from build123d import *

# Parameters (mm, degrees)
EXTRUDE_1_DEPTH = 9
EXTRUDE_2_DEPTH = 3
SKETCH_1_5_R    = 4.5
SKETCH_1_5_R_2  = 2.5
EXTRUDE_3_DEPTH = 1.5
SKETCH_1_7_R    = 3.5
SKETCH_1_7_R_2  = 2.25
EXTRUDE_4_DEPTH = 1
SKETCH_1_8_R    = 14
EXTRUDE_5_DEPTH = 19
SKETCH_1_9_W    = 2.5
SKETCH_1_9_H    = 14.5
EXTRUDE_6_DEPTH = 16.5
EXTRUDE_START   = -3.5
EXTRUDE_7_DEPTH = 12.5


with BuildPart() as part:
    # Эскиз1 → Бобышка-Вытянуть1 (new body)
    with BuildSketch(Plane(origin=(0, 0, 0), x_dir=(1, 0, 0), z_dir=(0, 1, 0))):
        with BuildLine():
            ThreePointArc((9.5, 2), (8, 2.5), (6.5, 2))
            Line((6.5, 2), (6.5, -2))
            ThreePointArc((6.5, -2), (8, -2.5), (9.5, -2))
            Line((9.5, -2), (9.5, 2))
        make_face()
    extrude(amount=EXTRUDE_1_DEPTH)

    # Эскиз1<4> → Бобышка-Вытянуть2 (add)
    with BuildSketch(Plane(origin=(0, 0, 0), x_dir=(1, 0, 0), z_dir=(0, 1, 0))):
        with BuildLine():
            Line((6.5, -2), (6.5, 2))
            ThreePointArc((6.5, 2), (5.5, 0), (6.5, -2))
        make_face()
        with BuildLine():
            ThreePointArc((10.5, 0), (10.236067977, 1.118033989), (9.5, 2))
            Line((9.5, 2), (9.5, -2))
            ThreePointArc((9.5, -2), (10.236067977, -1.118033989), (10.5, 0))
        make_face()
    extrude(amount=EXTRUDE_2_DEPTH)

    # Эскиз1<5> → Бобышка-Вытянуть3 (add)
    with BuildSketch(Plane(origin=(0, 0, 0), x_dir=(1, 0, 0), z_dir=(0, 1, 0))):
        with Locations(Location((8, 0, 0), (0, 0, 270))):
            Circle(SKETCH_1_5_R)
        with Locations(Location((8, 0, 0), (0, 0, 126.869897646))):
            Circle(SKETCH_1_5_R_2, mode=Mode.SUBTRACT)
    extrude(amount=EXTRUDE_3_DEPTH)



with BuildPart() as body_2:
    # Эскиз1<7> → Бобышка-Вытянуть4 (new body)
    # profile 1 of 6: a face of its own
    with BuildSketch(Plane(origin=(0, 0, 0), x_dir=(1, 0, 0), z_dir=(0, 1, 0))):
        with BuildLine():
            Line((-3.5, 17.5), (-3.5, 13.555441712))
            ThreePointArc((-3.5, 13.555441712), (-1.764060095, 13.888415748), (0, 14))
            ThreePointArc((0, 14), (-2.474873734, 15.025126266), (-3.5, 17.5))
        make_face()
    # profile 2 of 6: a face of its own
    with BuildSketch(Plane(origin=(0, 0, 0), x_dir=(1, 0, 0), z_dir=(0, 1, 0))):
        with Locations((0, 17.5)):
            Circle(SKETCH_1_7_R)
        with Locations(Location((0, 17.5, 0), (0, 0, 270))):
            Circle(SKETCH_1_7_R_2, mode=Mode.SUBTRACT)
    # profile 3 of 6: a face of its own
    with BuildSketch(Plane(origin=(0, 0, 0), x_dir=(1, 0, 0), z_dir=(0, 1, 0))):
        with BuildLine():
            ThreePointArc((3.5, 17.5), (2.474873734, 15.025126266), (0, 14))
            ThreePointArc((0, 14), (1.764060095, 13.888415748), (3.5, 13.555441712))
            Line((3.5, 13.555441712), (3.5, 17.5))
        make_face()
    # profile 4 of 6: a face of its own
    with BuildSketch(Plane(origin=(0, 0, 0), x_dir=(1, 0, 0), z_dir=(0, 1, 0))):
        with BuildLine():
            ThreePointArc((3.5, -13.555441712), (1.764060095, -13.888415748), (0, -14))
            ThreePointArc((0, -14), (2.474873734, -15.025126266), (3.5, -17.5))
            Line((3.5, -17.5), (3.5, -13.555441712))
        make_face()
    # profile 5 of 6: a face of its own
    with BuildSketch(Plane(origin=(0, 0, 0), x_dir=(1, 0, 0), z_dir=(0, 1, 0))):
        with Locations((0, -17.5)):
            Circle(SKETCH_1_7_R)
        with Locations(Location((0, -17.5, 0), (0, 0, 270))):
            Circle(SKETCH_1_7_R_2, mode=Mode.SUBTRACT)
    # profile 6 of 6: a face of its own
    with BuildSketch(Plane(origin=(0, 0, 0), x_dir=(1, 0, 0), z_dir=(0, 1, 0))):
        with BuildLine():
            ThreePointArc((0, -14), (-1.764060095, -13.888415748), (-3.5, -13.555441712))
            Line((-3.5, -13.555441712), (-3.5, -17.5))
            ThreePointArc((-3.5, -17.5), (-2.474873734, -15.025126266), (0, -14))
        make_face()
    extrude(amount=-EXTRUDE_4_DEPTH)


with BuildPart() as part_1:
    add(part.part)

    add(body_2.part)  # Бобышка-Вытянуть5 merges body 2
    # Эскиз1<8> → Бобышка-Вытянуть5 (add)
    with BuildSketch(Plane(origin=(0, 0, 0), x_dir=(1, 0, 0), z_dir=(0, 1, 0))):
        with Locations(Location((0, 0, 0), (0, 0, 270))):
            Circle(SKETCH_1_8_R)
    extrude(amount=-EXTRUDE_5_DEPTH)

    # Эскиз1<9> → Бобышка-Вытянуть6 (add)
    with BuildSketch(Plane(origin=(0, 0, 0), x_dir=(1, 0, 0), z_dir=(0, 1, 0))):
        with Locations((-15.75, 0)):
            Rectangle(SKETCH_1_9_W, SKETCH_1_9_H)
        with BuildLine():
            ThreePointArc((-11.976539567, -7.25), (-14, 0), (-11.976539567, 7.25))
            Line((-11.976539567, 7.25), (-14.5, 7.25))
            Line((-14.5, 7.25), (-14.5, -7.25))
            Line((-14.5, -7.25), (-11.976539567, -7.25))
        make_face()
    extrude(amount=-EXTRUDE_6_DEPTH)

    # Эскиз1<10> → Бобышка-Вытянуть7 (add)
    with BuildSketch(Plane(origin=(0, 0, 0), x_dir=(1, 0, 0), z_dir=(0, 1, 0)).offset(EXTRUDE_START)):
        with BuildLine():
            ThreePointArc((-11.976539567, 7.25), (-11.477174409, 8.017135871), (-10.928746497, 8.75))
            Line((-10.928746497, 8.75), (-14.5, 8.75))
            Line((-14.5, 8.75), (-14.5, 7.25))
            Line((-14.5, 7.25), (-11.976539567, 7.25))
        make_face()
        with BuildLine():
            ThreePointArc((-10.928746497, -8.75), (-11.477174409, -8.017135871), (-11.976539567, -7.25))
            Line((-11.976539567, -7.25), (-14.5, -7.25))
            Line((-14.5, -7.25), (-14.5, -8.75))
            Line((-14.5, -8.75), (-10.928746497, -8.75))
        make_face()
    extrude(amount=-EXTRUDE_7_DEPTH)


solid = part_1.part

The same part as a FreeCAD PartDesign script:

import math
import FreeCAD as App
import Part
import Sketcher
from FreeCAD import Vector
Q = App.Units.Quantity

doc = App.newDocument("Part")
body = doc.addObject("PartDesign::Body", "Body")

sketch1 = body.newObject("Sketcher::SketchObject", "Sketch")
sketch1.AttachmentSupport = (doc.getObject("XZ_Plane"), [""])
sketch1.MapMode = "FlatFace"
sketch1.addGeometry([
    Part.ArcOfCircle(Part.Circle(Vector(8, 0, 0), Vector(0, 0, 1), 2.5), math.radians(-127), math.radians(-53)),
    Part.LineSegment(Vector(6.5, -2, 0), Vector(6.5, 2, 0)),
    Part.ArcOfCircle(Part.Circle(Vector(8, 0, 0), Vector(0, 0, 1), 2.5), math.radians(53), math.radians(127)),
    Part.LineSegment(Vector(9.5, 2, 0), Vector(9.5, -2, 0)),
], False)
sketch1.addConstraint([
    Sketcher.Constraint("Coincident", 0, 1, 1, 1),
    Sketcher.Constraint("Coincident", 1, 2, 2, 2),
    Sketcher.Constraint("Coincident", 2, 1, 3, 1),
    Sketcher.Constraint("Coincident", 3, 2, 0, 2),
    Sketcher.Constraint("Vertical", 1),
    Sketcher.Constraint("Vertical", 3),
    Sketcher.Constraint("Coincident", 2, 3, 0, 3),
    Sketcher.Constraint("Equal", 0, 2),
    Sketcher.Constraint("PointOnObject", 0, 3, -1),
    Sketcher.Constraint("Horizontal", 1, 2, 2, 1),
    Sketcher.Constraint("Radius", 0, Q("2.5 mm")),
    Sketcher.Constraint("DistanceY", 1, 1, 1, 2, Q("4 mm")),
    Sketcher.Constraint("DistanceX", -1, 1, 0, 3, Q("8 mm")),
])
pad1 = body.newObject("PartDesign::Pad", "Pad")
pad1.Profile = sketch1
pad1.Length = 9
pad1.Reversed = True

sketch2 = body.newObject("Sketcher::SketchObject", "Sketch001")
sketch2.AttachmentSupport = (doc.getObject("XZ_Plane"), [""])
sketch2.MapMode = "FlatFace"
sketch2.addGeometry([
    Part.LineSegment(Vector(6.5, 2, 0), Vector(6.5, -2, 0)),
    Part.ArcOfCircle(Part.Circle(Vector(8, 0, 0), Vector(0, 0, 1), 2.5), math.radians(127), math.radians(233)),
    Part.ArcOfCircle(Part.Circle(Vector(8, 0, 0), Vector(0, 0, 1), 2.5), math.radians(-53), math.radians(0)),
    Part.LineSegment(Vector(9.5, -2, 0), Vector(9.5, 2, 0)),
    Part.ArcOfCircle(Part.Circle(Vector(8, 0, 0), Vector(0, 0, 1), 2.5), math.radians(0), math.radians(53)),
], False)
sketch2.addConstraint([
    Sketcher.Constraint("Coincident", 0, 1, 1, 1),
    Sketcher.Constraint("Coincident", 1, 2, 0, 2),
    Sketcher.Constraint("Coincident", 2, 1, 3, 1),
    Sketcher.Constraint("Coincident", 3, 2, 4, 2),
    Sketcher.Constraint("Tangent", 4, 1, 2, 2),
    Sketcher.Constraint("Vertical", 0),
    Sketcher.Constraint("Vertical", 3),
    Sketcher.Constraint("Coincident", 2, 3, 1, 3),
    Sketcher.Constraint("Equal", 1, 2),
    Sketcher.Constraint("Equal", 2, 4),
    Sketcher.Constraint("PointOnObject", 1, 3, -1),
    Sketcher.Constraint("PointOnObject", 4, 1, -1),
    Sketcher.Constraint("Horizontal", 1, 2, 2, 1),
    Sketcher.Constraint("Radius", 1, Q("2.5 mm")),
    Sketcher.Constraint("DistanceY", 0, 2, 0, 1, Q("4 mm")),
    Sketcher.Constraint("DistanceX", -1, 1, 1, 3, Q("8 mm")),
])
pad2 = body.newObject("PartDesign::Pad", "Pad001")
pad2.Profile = sketch2
pad2.Length = 3
pad2.Reversed = True

sketch3 = body.newObject("Sketcher::SketchObject", "Sketch002")
sketch3.AttachmentSupport = (doc.getObject("XZ_Plane"), [""])
sketch3.MapMode = "FlatFace"
sketch3.addGeometry([
    Part.Circle(Vector(8, 0, 0), Vector(0, 0, 1), 4.5),
    Part.Circle(Vector(8, 0, 0), Vector(0, 0, 1), 2.5),
], False)
sketch3.addConstraint([
    Sketcher.Constraint("Coincident", 1, 3, 0, 3),
    Sketcher.Constraint("PointOnObject", 0, 3, -1),
    Sketcher.Constraint("Diameter", 0, Q("9 mm")),
    Sketcher.Constraint("Diameter", 1, Q("5 mm")),
    Sketcher.Constraint("DistanceX", -1, 1, 0, 3, Q("8 mm")),
])
pad3 = body.newObject("PartDesign::Pad", "Pad002")
pad3.Profile = sketch3
pad3.Length = 1.5
pad3.Reversed = True
body2 = doc.addObject("PartDesign::Body", "Body001")
body2.AllowCompound = True

sketch4 = body2.newObject("Sketcher::SketchObject", "Sketch003")
sketch4.AttachmentSupport = (doc.getObject("XZ_Plane001"), [""])
sketch4.MapMode = "FlatFace"
sketch4.addGeometry([
    Part.LineSegment(Vector(-3.5, -17.5, 0), Vector(-3.5, -13.6, 0)),
    Part.ArcOfCircle(Part.Circle(Vector(0, 0, 0), Vector(0, 0, 1), 14), math.radians(-104.48), math.radians(-90)),
    Part.ArcOfCircle(Part.Circle(Vector(0, 0, 0), Vector(0, 0, 1), 14), math.radians(-90), math.radians(-75.52)),
    Part.LineSegment(Vector(3.5, -13.6, 0), Vector(3.5, -17.5, 0)),
    Part.ArcOfCircle(Part.Circle(Vector(0, -17.5, 0), Vector(0, 0, 1), 3.5), math.radians(180), math.radians(360)),
    Part.Circle(Vector(0, -17.5, 0), Vector(0, 0, 1), 2.2),
    Part.ArcOfCircle(Part.Circle(Vector(0, 0, 0), Vector(0, 0, 1), 14), math.radians(75.52), math.radians(90)),
    Part.ArcOfCircle(Part.Circle(Vector(0, 0, 0), Vector(0, 0, 1), 14), math.radians(90), math.radians(104.48)),
    Part.LineSegment(Vector(-3.5, 13.6, 0), Vector(-3.5, 17.5, 0)),
    Part.ArcOfCircle(Part.Circle(Vector(0, 17.5, 0), Vector(0, 0, 1), 3.5), math.radians(0), math.radians(180)),
    Part.LineSegment(Vector(3.5, 17.5, 0), Vector(3.5, 13.6, 0)),
    Part.Circle(Vector(0, 17.5, 0), Vector(0, 0, 1), 2.2),
], False)
sketch4.addConstraint([
    Sketcher.Constraint("Coincident", 0, 2, 1, 1),
    Sketcher.Constraint("Tangent", 1, 2, 2, 1),
    Sketcher.Constraint("Coincident", 2, 2, 3, 1),
    Sketcher.Constraint("Tangent", 3, 2, 4, 2),
    Sketcher.Constraint("Tangent", 4, 1, 0, 1),
    Sketcher.Constraint("Tangent", 6, 2, 7, 1),
    Sketcher.Constraint("Coincident", 7, 2, 8, 1),
    Sketcher.Constraint("Tangent", 8, 2, 9, 2),
    Sketcher.Constraint("Tangent", 9, 1, 10, 1),
    Sketcher.Constraint("Coincident", 10, 2, 6, 1),
    Sketcher.Constraint("Vertical", 0),
    Sketcher.Constraint("Vertical", 3),
    Sketcher.Constraint("Vertical", 8),
    Sketcher.Constraint("Vertical", 10),
    Sketcher.Constraint("Coincident", 1, 3, -1, 1),
    Sketcher.Constraint("Coincident", 6, 3, -1, 1),
    Sketcher.Constraint("Coincident", 5, 3, 4, 3),
    Sketcher.Constraint("Coincident", 11, 3, 9, 3),
    Sketcher.Constraint("Equal", 1, 2),
    Sketcher.Constraint("Equal", 2, 6),
    Sketcher.Constraint("Equal", 6, 7),
    Sketcher.Constraint("Equal", 4, 9),
    Sketcher.Constraint("Equal", 5, 11),
    Sketcher.Constraint("Symmetric", 4, 3, 9, 3, -1, 1),
    Sketcher.Constraint("PointOnObject", 4, 3, -2),
    Sketcher.Constraint("PointOnObject", 1, 2, -2),
    Sketcher.Constraint("PointOnObject", 6, 2, -2),
    Sketcher.Constraint("Radius", 1, Q("14 mm")),
    Sketcher.Constraint("Diameter", 5, Q("4.5 mm")),
    Sketcher.Constraint("Radius", 4, Q("3.5 mm")),
    Sketcher.Constraint("DistanceY", 4, 3, 9, 3, Q("35 mm")),
])
pad4 = body2.newObject("PartDesign::Pad", "Pad003")
pad4.Profile = sketch4
pad4.Length = 1
body.AllowCompound = True
doc.recompute()

boolean = body.newObject("PartDesign::Boolean", "Boolean")
boolean.Type = "Fuse"
boolean.addObjects([body2])

sketch5 = body.newObject("Sketcher::SketchObject", "Sketch004")
sketch5.AttachmentSupport = (doc.getObject("XZ_Plane"), [""])
sketch5.MapMode = "FlatFace"
sketch5.addGeometry(Part.Circle(Vector(0, 0, 0), Vector(0, 0, 1), 14), False)
sketch5.addConstraint([
    Sketcher.Constraint("Coincident", 0, 3, -1, 1),
    Sketcher.Constraint("Diameter", 0, Q("28 mm")),
])
pad5 = body.newObject("PartDesign::Pad", "Pad004")
pad5.Profile = sketch5
pad5.Length = 19

sketch6 = body.newObject("Sketcher::SketchObject", "Sketch005")
sketch6.AttachmentSupport = (doc.getObject("XZ_Plane"), [""])
sketch6.MapMode = "FlatFace"
sketch6.addGeometry([
    Part.LineSegment(Vector(-17, -7, 0), Vector(-17, 7, 0)),
    Part.LineSegment(Vector(-17, 7, 0), Vector(-12, 7, 0)),
    Part.ArcOfCircle(Part.Circle(Vector(0, 0, 0), Vector(0, 0, 1), 14), math.radians(149), math.radians(211)),
    Part.LineSegment(Vector(-12, -7, 0), Vector(-17, -7, 0)),
], False)
sketch6.addConstraint([
    Sketcher.Constraint("Coincident", 0, 2, 1, 1),
    Sketcher.Constraint("Coincident", 1, 2, 2, 1),
    Sketcher.Constraint("Coincident", 2, 2, 3, 1),
    Sketcher.Constraint("Coincident", 3, 2, 0, 1),
    Sketcher.Constraint("Vertical", 0),
    Sketcher.Constraint("Horizontal", 1),
    Sketcher.Constraint("Horizontal", 3),
    Sketcher.Constraint("Coincident", 2, 3, -1, 1),
    Sketcher.Constraint("Vertical", 1, 2, 2, 2),
    Sketcher.Constraint("Radius", 2, Q("14 mm")),
    Sketcher.Constraint("DistanceY", 0, 1, 0, 2, Q("14.5 mm")),
    Sketcher.Constraint("DistanceX", 0, 2, -1, 1, Q("17 mm")),
])
pad6 = body.newObject("PartDesign::Pad", "Pad005")
pad6.Profile = sketch6
pad6.Length = 16.5

sketch7 = body.newObject("Sketcher::SketchObject", "Sketch006")
sketch7.AttachmentSupport = (doc.getObject("XZ_Plane"), [""])
sketch7.MapMode = "FlatFace"
sketch7.AttachmentOffset = App.Placement(Vector(0, 0, 3.5), App.Rotation())
sketch7.addGeometry([
    Part.ArcOfCircle(Part.Circle(Vector(0, 0, 0), Vector(0, 0, 1), 14), math.radians(-148.81), math.radians(-141.32)),
    Part.LineSegment(Vector(-10.9, -8.8, 0), Vector(-14.5, -8.8, 0)),
    Part.LineSegment(Vector(-14.5, -8.8, 0), Vector(-14.5, -7.2, 0)),
    Part.LineSegment(Vector(-14.5, -7.2, 0), Vector(-12, -7.2, 0)),
    Part.ArcOfCircle(Part.Circle(Vector(0, 0, 0), Vector(0, 0, 1), 14), math.radians(141.32), math.radians(148.81)),
    Part.LineSegment(Vector(-12, 7.2, 0), Vector(-14.5, 7.2, 0)),
    Part.LineSegment(Vector(-14.5, 7.2, 0), Vector(-14.5, 8.8, 0)),
    Part.LineSegment(Vector(-14.5, 8.8, 0), Vector(-10.9, 8.8, 0)),
], False)
sketch7.addConstraint([
    Sketcher.Constraint("Coincident", 0, 2, 1, 1),
    Sketcher.Constraint("Coincident", 1, 2, 2, 1),
    Sketcher.Constraint("Coincident", 2, 2, 3, 1),
    Sketcher.Constraint("Coincident", 3, 2, 0, 1),
    Sketcher.Constraint("Coincident", 4, 2, 5, 1),
    Sketcher.Constraint("Coincident", 5, 2, 6, 1),
    Sketcher.Constraint("Coincident", 6, 2, 7, 1),
    Sketcher.Constraint("Coincident", 7, 2, 4, 1),
    Sketcher.Constraint("Horizontal", 1),
    Sketcher.Constraint("Vertical", 2),
    Sketcher.Constraint("Horizontal", 3),
    Sketcher.Constraint("Horizontal", 5),
    Sketcher.Constraint("Vertical", 6),
    Sketcher.Constraint("Horizontal", 7),
    Sketcher.Constraint("Coincident", 0, 3, -1, 1),
    Sketcher.Constraint("Coincident", 4, 3, -1, 1),
    Sketcher.Constraint("Equal", 0, 4),
    Sketcher.Constraint("Symmetric", 2, 2, 5, 2, -1),
    Sketcher.Constraint("Vertical", 0, 2, 7, 2),
    Sketcher.Constraint("Radius", 0, Q("14 mm")),
    Sketcher.Constraint("DistanceY", 2, 1, 2, 2, Q("1.5 mm")),
    Sketcher.Constraint("DistanceY", 0, 2, 4, 2, Q("16 mm")),
    Sketcher.Constraint("DistanceX", 1, 2, -1, 1, Q("14.5 mm")),
])
pad7 = body.newObject("PartDesign::Pad", "Pad006")
pad7.Profile = sketch7
pad7.Length = 12.5

doc.recompute()
